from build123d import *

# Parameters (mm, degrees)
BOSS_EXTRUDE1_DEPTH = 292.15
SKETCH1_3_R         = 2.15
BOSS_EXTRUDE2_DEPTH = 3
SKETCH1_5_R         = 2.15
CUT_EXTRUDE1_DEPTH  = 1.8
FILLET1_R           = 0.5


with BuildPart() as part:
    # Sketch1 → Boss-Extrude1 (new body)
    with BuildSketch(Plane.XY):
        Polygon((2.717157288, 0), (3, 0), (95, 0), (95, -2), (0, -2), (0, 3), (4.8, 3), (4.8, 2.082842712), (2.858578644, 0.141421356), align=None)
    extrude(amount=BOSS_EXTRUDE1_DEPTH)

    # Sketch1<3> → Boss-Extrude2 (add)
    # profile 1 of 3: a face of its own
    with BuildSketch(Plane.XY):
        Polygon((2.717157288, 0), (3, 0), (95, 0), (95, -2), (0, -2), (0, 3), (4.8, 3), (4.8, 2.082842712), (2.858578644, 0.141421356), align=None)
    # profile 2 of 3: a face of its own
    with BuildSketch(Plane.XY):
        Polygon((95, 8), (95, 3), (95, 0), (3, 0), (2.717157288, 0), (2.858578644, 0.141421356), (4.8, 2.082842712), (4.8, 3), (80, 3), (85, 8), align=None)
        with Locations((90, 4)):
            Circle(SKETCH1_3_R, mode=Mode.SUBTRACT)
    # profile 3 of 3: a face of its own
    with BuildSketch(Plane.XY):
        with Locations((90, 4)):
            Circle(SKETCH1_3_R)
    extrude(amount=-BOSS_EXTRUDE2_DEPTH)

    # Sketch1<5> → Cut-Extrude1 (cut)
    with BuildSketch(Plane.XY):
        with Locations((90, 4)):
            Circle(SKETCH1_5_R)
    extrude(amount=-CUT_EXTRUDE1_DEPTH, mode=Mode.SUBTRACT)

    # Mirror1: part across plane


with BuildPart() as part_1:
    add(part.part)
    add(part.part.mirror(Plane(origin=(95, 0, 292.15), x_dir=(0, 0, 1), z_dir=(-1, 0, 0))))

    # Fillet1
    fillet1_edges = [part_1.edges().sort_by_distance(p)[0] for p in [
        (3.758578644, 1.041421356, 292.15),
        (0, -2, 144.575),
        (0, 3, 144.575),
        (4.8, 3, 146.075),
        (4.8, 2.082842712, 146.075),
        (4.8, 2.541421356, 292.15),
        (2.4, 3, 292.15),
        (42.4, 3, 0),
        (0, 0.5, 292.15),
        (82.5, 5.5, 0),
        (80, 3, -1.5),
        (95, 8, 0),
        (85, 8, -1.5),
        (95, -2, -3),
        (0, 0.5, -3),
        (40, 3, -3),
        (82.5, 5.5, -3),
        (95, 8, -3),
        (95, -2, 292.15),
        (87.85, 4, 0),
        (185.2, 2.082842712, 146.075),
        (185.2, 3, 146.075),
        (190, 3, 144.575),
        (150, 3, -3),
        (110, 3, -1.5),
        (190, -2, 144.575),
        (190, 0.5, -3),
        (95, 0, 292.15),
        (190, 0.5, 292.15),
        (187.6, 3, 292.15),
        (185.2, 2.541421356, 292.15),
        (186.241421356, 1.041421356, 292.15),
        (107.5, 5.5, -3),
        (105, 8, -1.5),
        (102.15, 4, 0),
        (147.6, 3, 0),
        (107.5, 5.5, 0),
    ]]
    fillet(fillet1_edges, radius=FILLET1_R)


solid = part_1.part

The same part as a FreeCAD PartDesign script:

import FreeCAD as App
import Part
import Sketcher
Q = App.Units.Quantity


def edges_at(feature, points):
    """Names of the edges that pass closest to the given points."""
    edges = feature.Shape.Edges
    near = lambda p: min(range(len(edges)), key=lambda i: edges[i].distToShape(Part.Vertex(*p))[0])
    return sorted({f"Edge{near(p) + 1}" for p in points})

doc = App.newDocument("Part")
body = doc.addObject("PartDesign::Body", "Body")

sketch1 = doc.addObject("Sketcher::SketchObject", "Sketch")
body.addObject(sketch1)
sketch1.AttachmentSupport = (doc.XY_Plane, [""])
sketch1.MapMode = "FlatFace"
sketch1.addGeometry([
    Part.LineSegment(App.Vector(95, 0, 0), App.Vector(2.7, 0, 0)),
    Part.LineSegment(App.Vector(2.7, 0, 0), App.Vector(4.8, 2.1, 0)),
    Part.LineSegment(App.Vector(4.8, 2.1, 0), App.Vector(4.8, 3, 0)),
    Part.LineSegment(App.Vector(4.8, 3, 0), App.Vector(0, 3, 0)),
    Part.LineSegment(App.Vector(0, 3, 0), App.Vector(0, -2, 0)),
    Part.LineSegment(App.Vector(0, -2, 0), App.Vector(95, -2, 0)),
    Part.LineSegment(App.Vector(95, -2, 0), App.Vector(95, 0, 0)),
], False)
sketch1.addConstraint([
    Sketcher.Constraint("Coincident", 0, 2, 1, 1),
    Sketcher.Constraint("Coincident", 1, 2, 2, 1),
    Sketcher.Constraint("Coincident", 2, 2, 3, 1),
    Sketcher.Constraint("Coincident", 3, 2, 4, 1),
    Sketcher.Constraint("Coincident", 4, 2, 5, 1),
    Sketcher.Constraint("Coincident", 5, 2, 6, 1),
    Sketcher.Constraint("Coincident", 6, 2, 0, 1),
    Sketcher.Constraint("Horizontal", 0),
    Sketcher.Constraint("Vertical", 2),
    Sketcher.Constraint("Horizontal", 3),
    Sketcher.Constraint("Vertical", 4),
    Sketcher.Constraint("Horizontal", 5),
    Sketcher.Constraint("Vertical", 6),
    Sketcher.Constraint("PointOnObject", 0, 2, -1),
    Sketcher.Constraint("PointOnObject", 3, 2, -2),
    Sketcher.Constraint("DistanceX", 5, 1, 5, 2, 95.0),
    Sketcher.Constraint("DistanceY", 4, 2, 4, 1, 5.0),
    Sketcher.Constraint("DistanceY", 6, 1, 6, 2, 2.0),
    Sketcher.Constraint("Angle", 1, Q("45 deg")),
    Sketcher.Constraint("DistanceX", 3, 2, 3, 1, 4.8),
    Sketcher.Constraint("DistanceX", 0, 2, 0, 1, 92.282843),
])
pad1 = doc.addObject("PartDesign::Pad", "Pad")
body.addObject(pad1)
pad1.Profile = sketch1
pad1.Length = 292.15

sketch2 = doc.addObject("Sketcher::SketchObject", "Sketch001")
body.addObject(sketch2)
sketch2.AttachmentSupport = (doc.XY_Plane, [""])
sketch2.MapMode = "FlatFace"
sketch2.addGeometry([
    Part.LineSegment(App.Vector(95, -2, 0), App.Vector(95, 8, 0)),
    Part.LineSegment(App.Vector(95, 8, 0), App.Vector(85, 8, 0)),
    Part.LineSegment(App.Vector(85, 8, 0), App.Vector(80, 3, 0)),
    Part.LineSegment(App.Vector(80, 3, 0), App.Vector(0, 3, 0)),
    Part.LineSegment(App.Vector(0, 3, 0), App.Vector(0, -2, 0)),
    Part.LineSegment(App.Vector(0, -2, 0), App.Vector(95, -2, 0)),
], False)
sketch2.addConstraint([
    Sketcher.Constraint("Coincident", 0, 2, 1, 1),
    Sketcher.Constraint("Coincident", 1, 2, 2, 1),
    Sketcher.Constraint("Coincident", 2, 2, 3, 1),
    Sketcher.Constraint("Coincident", 3, 2, 4, 1),
    Sketcher.Constraint("Coincident", 4, 2, 5, 1),
    Sketcher.Constraint("Coincident", 5, 2, 0, 1),
    Sketcher.Constraint("Vertical", 0),
    Sketcher.Constraint("Horizontal", 1),
    Sketcher.Constraint("Horizontal", 3),
    Sketcher.Constraint("Vertical", 4),
    Sketcher.Constraint("Horizontal", 5),
    Sketcher.Constraint("PointOnObject", 3, 2, -2),
    Sketcher.Constraint("Equal", 1, 0),
    Sketcher.Constraint("DistanceX", 1, 2, 1, 1, 10.0),
    Sketcher.Constraint("DistanceX", 3, 2, 3, 1, 80.0),
    Sketcher.Constraint("DistanceX", 5, 1, 5, 2, 95.0),
    Sketcher.Constraint("DistanceY", 4, 2, 4, 1, 5.0),
    Sketcher.Constraint("DistanceY", -1, 1, 0, 2, 8.0),
])
pad2 = doc.addObject("PartDesign::Pad", "Pad001")
body.addObject(pad2)
pad2.Profile = sketch2
pad2.Length = 3
pad2.Reversed = True

sketch3 = doc.addObject("Sketcher::SketchObject", "Sketch002")
body.addObject(sketch3)
sketch3.AttachmentSupport = (doc.XY_Plane, [""])
sketch3.MapMode = "FlatFace"
sketch3.addGeometry(Part.Circle(App.Vector(90, 4, 0), App.Vector(0, 0, 1), 2.1), False)
sketch3.addConstraint([
    Sketcher.Constraint("Diameter", 0, 4.3),
    Sketcher.Constraint("DistanceX", -1, 1, 0, 3, 90.0),
    Sketcher.Constraint("DistanceY", -1, 1, 0, 3, 4.0),
])
pocket1 = doc.addObject("PartDesign::Pocket", "Pocket")
body.addObject(pocket1)
pocket1.Profile = sketch3
pocket1.Length = 1.8
body2 = doc.addObject("PartDesign::Body", "Body001")
doc.recompute()

body2.BaseFeature = body
doc.recompute()

mirroring = doc.addObject("Part::Mirroring", "Mirroring")
mirroring.Source = body
mirroring.Base = App.Vector(95, 0, 292.15)
mirroring.Normal = App.Vector(-1, 0, 0)
body3 = doc.addObject("PartDesign::Body", "Body002")
body3.BaseFeature = mirroring
boolean = doc.addObject("PartDesign::Boolean", "Boolean")
body2.addObject(boolean)
boolean.Type = "Fuse"
boolean.addObjects([body3])
doc.recompute()

fillet = doc.addObject("PartDesign::Fillet", "Fillet")
body2.addObject(fillet)
fillet.Base = (boolean, edges_at(boolean, [
    (3.759, 1.041, 292.15),
    (0, -2, 144.575),
    (0, 3, 144.575),
    (4.8, 3, 146.075),
    (4.8, 2.083, 146.075),
    (4.8, 2.541, 292.15),
    (2.4, 3, 292.15),
    (42.4, 3, 0),
    (0, 0.5, 292.15),
    (82.5, 5.5, 0),
    (80, 3, -1.5),
    (95, 8, 0),
    (85, 8, -1.5),
    (95, -2, -3),
    (0, 0.5, -3),
    (40, 3, -3),
    (82.5, 5.5, -3),
    (95, 8, -3),
    (95, -2, 292.15),
    (87.85, 4, 0),
    (185.2, 2.083, 146.075),
    (185.2, 3, 146.075),
    (190, 3, 144.575),
    (150, 3, -3),
    (110, 3, -1.5),
    (190, -2, 144.575),
    (190, 0.5, -3),
    (95, 0, 292.15),
    (190, 0.5, 292.15),
    (187.6, 3, 292.15),
    (185.2, 2.541, 292.15),
    (186.241, 1.041, 292.15),
    (107.5, 5.5, -3),
    (105, 8, -1.5),
    (102.15, 4, 0),
    (147.6, 3, 0),
    (107.5, 5.5, 0),
]))
fillet.Radius = 0.5
mirroring.Visibility = False

doc.recompute()
